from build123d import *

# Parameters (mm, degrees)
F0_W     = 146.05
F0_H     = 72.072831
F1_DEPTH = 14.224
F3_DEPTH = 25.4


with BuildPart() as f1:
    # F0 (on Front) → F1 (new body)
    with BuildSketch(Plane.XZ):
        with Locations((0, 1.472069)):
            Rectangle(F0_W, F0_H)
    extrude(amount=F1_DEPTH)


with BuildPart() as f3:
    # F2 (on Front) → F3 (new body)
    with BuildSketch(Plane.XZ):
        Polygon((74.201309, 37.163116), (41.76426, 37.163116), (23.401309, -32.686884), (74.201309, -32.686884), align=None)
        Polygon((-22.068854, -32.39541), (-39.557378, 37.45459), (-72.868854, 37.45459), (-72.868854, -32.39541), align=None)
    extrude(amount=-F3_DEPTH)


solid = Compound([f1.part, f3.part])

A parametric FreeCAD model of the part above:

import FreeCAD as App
import Part
import Sketcher

V = App.Vector
Q = App.Units.Quantity

doc = App.newDocument("Part")
body = doc.addObject("PartDesign::Body", "Body")

# Sketch on XZ plane
sketch1 = doc.addObject("Sketcher::SketchObject", "Sketch")
body.addObject(sketch1)
sketch1.AttachmentSupport = (doc.XZ_Plane, [""])
sketch1.MapMode = "FlatFace"
sketch1.addGeometry(Part.LineSegment(V(-73, 38, 0), V(-73, -35, 0)), False)
sketch1.addGeometry(Part.LineSegment(V(-73, -35, 0), V(73, -35, 0)), False)
sketch1.addGeometry(Part.LineSegment(V(73, -35, 0), V(73, 38, 0)), False)
sketch1.addGeometry(Part.LineSegment(V(73, 38, 0), V(-73, 38, 0)), False)
sketch1.addConstraint(Sketcher.Constraint("Coincident", 0, 2, 1, 1))
sketch1.addConstraint(Sketcher.Constraint("Coincident", 1, 2, 2, 1))
sketch1.addConstraint(Sketcher.Constraint("Coincident", 2, 2, 3, 1))
sketch1.addConstraint(Sketcher.Constraint("Coincident", 3, 2, 0, 1))
sketch1.addConstraint(Sketcher.Constraint("Vertical", 0))
sketch1.addConstraint(Sketcher.Constraint("Horizontal", 1))
sketch1.addConstraint(Sketcher.Constraint("Vertical", 2))
sketch1.addConstraint(Sketcher.Constraint("Horizontal", 3))
sketch1.addConstraint(Sketcher.Constraint("DistanceX", 1, 1, 1, 2, Q("5.75 in")))
sketch1.addConstraint(Sketcher.Constraint("DistanceX", 0, 2, -1, 1, Q("2.875 in")))
sketch1.addConstraint(Sketcher.Constraint("DistanceY", 0, 2, 0, 1, Q("72.072831 mm")))
sketch1.addConstraint(Sketcher.Constraint("DistanceY", 0, 2, -1, 1, Q("34.564346 mm")))
pad1 = doc.addObject("PartDesign::Pad", "Pad")
body.addObject(pad1)
pad1.Profile = sketch1
pad1.Length = Q("0.56 in")
body2 = doc.addObject("PartDesign::Body", "Body001")
body2.AllowCompound = True

# Sketch on XZ plane
sketch2 = doc.addObject("Sketcher::SketchObject", "Sketch001")
body2.addObject(sketch2)
sketch2.AttachmentSupport = (doc.getObject("XZ_Plane001"), [""])
sketch2.MapMode = "FlatFace"
sketch2.addGeometry(Part.LineSegment(V(74, 37, 0), V(42, 37, 0)), False)
sketch2.addGeometry(Part.LineSegment(V(42, 37, 0), V(23, -33, 0)), False)
sketch2.addGeometry(Part.LineSegment(V(23, -33, 0), V(74, -33, 0)), False)
sketch2.addGeometry(Part.LineSegment(V(74, -33, 0), V(74, 37, 0)), False)
sketch2.addGeometry(Part.LineSegment(V(-22, -32, 0), V(-40, 37, 0)), False)
sketch2.addGeometry(Part.LineSegment(V(-40, 37, 0), V(-73, 37, 0)), False)
sketch2.addGeometry(Part.LineSegment(V(-73, 37, 0), V(-73, -32, 0)), False)
sketch2.addGeometry(Part.LineSegment(V(-73, -32, 0), V(-22, -32, 0)), False)
sketch2.addConstraint(Sketcher.Constraint("Coincident", 0, 2, 1, 1))
sketch2.addConstraint(Sketcher.Constraint("Coincident", 1, 2, 2, 1))
sketch2.addConstraint(Sketcher.Constraint("Coincident", 2, 2, 3, 1))
sketch2.addConstraint(Sketcher.Constraint("Coincident", 3, 2, 0, 1))
sketch2.addConstraint(Sketcher.Constraint("Coincident", 4, 2, 5, 1))
sketch2.addConstraint(Sketcher.Constraint("Coincident", 5, 2, 6, 1))
sketch2.addConstraint(Sketcher.Constraint("Coincident", 6, 2, 7, 1))
sketch2.addConstraint(Sketcher.Constraint("Coincident", 7, 2, 4, 1))
sketch2.addConstraint(Sketcher.Constraint("Horizontal", 0))
sketch2.addConstraint(Sketcher.Constraint("Horizontal", 2))
sketch2.addConstraint(Sketcher.Constraint("Vertical", 3))
sketch2.addConstraint(Sketcher.Constraint("Horizontal", 5))
sketch2.addConstraint(Sketcher.Constraint("Vertical", 6))
sketch2.addConstraint(Sketcher.Constraint("Horizontal", 7))
sketch2.addConstraint(Sketcher.Constraint("Equal", 2, 7))
sketch2.addConstraint(Sketcher.Constraint("Equal", 3, 6))
sketch2.addConstraint(Sketcher.Constraint("DistanceX", 2, 1, 2, 2, Q("2 in")))
sketch2.addConstraint(Sketcher.Constraint("DistanceY", 3, 1, 3, 2, Q("2.75 in")))
sketch2.addConstraint(Sketcher.Constraint("DistanceX", 0, 2, 0, 1, Q("32.437049 mm")))
sketch2.addConstraint(Sketcher.Constraint("Distance", 4, Q("72.006048 mm")))
sketch2.addConstraint(Sketcher.Constraint("DistanceX", -1, 1, 0, 2, Q("41.76426 mm")))
sketch2.addConstraint(Sketcher.Constraint("DistanceY", -1, 1, 4, 2, Q("37.45459 mm")))
sketch2.addConstraint(Sketcher.Constraint("DistanceX", 4, 2, 0, 2, Q("81.321638 mm")))
sketch2.addConstraint(Sketcher.Constraint("DistanceY", -1, 1, 0, 2, Q("37.163116 mm")))
pad2 = doc.addObject("PartDesign::Pad", "Pad001")
body2.addObject(pad2)
pad2.Profile = sketch2
pad2.Length = Q("1 in")
pad2.Reversed = True

doc.recompute()
